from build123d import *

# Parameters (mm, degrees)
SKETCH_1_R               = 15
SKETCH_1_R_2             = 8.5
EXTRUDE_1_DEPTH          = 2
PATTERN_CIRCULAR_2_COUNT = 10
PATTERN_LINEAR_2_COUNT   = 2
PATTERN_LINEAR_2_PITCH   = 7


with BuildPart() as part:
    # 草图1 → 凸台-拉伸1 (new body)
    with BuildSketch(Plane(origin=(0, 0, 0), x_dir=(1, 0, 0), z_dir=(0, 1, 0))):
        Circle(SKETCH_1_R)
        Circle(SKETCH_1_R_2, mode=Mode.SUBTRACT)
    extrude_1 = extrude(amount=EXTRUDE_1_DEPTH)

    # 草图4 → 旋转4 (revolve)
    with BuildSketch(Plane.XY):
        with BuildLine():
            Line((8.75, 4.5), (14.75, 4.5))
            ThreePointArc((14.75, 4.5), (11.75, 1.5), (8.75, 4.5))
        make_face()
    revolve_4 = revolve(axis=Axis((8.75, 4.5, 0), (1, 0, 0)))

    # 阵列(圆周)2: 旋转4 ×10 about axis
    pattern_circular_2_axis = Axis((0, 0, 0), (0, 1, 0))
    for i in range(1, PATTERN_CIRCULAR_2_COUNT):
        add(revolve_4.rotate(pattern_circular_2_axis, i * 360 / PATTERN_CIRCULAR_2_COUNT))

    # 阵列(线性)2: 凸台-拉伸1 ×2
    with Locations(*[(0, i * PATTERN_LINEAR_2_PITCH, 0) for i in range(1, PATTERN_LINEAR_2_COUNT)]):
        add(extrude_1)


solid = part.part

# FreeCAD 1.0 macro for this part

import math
import FreeCAD as App
import Part
import Sketcher

doc = App.newDocument("Part")
params = doc.addObject("Spreadsheet::Sheet", "Params")
for row, (alias, value) in enumerate([
    ("sketch1_diameter", "30 mm"),
    ("sketch1_diameter2", "17 mm"),
    ("pad1_length", "2 mm"),
    ("sketch2_radius", "3 mm"),
    ("revolution_angle", "360 deg"),
    ("linearpattern_pitch", "7 mm"),
], start=1):
    params.set(f"A{row}", alias)
    params.set(f"B{row}", "=" + value)
    params.setAlias(f"B{row}", alias)

body = doc.addObject("PartDesign::Body", "Body")

sketch1 = body.newObject("Sketcher::SketchObject", "Sketch")
sketch1.AttachmentSupport = (doc.getObject("XZ_Plane"), [""])
sketch1.MapMode = "FlatFace"
sketch1.addGeometry(Part.Circle(App.Vector(0, 0, 0), App.Vector(0, 0, 1), 15), False)
sketch1.addGeometry(Part.Circle(App.Vector(0, 0, 0), App.Vector(0, 0, 1), 8), False)
sketch1.addConstraint(Sketcher.Constraint("Coincident", 0, 3, -1, 1))
sketch1.addConstraint(Sketcher.Constraint("Coincident", 1, 3, -1, 1))
sketch1.addConstraint(Sketcher.Constraint("Diameter", 0, 30.0))
sketch1.addConstraint(Sketcher.Constraint("Diameter", 1, 17.0))
sketch1.setExpression("Constraints[2]", "Params.sketch1_diameter")
sketch1.setExpression("Constraints[3]", "Params.sketch1_diameter2")
pad1 = body.newObject("PartDesign::Pad", "Pad")
pad1.Profile = sketch1
pad1.setExpression("Length", "Params.pad1_length")
pad1.Reversed = True

sketch2 = body.newObject("Sketcher::SketchObject", "Sketch001")
sketch2.AttachmentSupport = (doc.getObject("XY_Plane"), [""])
sketch2.MapMode = "FlatFace"
sketch2.addGeometry(Part.LineSegment(App.Vector(14.8, 4.5, 0), App.Vector(8.8, 4.5, 0)), False)
sketch2.addGeometry(Part.ArcOfCircle(Part.Circle(App.Vector(11.8, 4.5, 0), App.Vector(0, 0, 1), 3), math.radians(180), math.radians(360)), False)
sketch2.addGeometry(Part.LineSegment(App.Vector(8.8, 4.5, 0), App.Vector(14.8, 4.5, 0)), True)
sketch2.addConstraint(Sketcher.Constraint("Coincident", 0, 1, 1, 2))
sketch2.addConstraint(Sketcher.Constraint("Coincident", 1, 1, 0, 2))
sketch2.addConstraint(Sketcher.Constraint("Horizontal", 0))
sketch2.addConstraint(Sketcher.Constraint("Horizontal", 2))
sketch2.addConstraint(Sketcher.Constraint("Coincident", 2, 1, 1, 1))
sketch2.addConstraint(Sketcher.Constraint("Horizontal", 1, 3, 0, 1))
sketch2.addConstraint(Sketcher.Constraint("Equal", 0, 2))
sketch2.addConstraint(Sketcher.Constraint("Radius", 1, 3.0))
sketch2.addConstraint(Sketcher.Constraint("DistanceY", -1, 1, 1, 3, 4.5))
sketch2.addConstraint(Sketcher.Constraint("DistanceX", -1, 1, 1, 3, 11.75))
sketch2.setExpression("Constraints[7]", "Params.sketch2_radius")
revolution = body.newObject("PartDesign::Revolution", "Revolution")
revolution.Profile = sketch2
revolution.ReferenceAxis = (sketch2, ["Axis0"])
revolution.setExpression("Angle", "Params.revolution_angle")
doc.recompute()

polarpattern = body.newObject("PartDesign::PolarPattern", "PolarPattern")
polarpattern.Originals = [revolution]
polarpattern.Axis = (doc.getObject("Y_Axis"), [""])
polarpattern.Angle = 360
polarpattern.Occurrences = 10
body.Tip = polarpattern
doc.recompute()

linearpattern = body.newObject("PartDesign::LinearPattern", "LinearPattern")
linearpattern.Originals = [pad1]
linearpattern.Direction = (doc.getObject("Y_Axis"), [""])
linearpattern.Mode = "offset"
linearpattern.setExpression("Offset", "Params.linearpattern_pitch")
linearpattern.Occurrences = 2
body.Tip = linearpattern

doc.recompute()
